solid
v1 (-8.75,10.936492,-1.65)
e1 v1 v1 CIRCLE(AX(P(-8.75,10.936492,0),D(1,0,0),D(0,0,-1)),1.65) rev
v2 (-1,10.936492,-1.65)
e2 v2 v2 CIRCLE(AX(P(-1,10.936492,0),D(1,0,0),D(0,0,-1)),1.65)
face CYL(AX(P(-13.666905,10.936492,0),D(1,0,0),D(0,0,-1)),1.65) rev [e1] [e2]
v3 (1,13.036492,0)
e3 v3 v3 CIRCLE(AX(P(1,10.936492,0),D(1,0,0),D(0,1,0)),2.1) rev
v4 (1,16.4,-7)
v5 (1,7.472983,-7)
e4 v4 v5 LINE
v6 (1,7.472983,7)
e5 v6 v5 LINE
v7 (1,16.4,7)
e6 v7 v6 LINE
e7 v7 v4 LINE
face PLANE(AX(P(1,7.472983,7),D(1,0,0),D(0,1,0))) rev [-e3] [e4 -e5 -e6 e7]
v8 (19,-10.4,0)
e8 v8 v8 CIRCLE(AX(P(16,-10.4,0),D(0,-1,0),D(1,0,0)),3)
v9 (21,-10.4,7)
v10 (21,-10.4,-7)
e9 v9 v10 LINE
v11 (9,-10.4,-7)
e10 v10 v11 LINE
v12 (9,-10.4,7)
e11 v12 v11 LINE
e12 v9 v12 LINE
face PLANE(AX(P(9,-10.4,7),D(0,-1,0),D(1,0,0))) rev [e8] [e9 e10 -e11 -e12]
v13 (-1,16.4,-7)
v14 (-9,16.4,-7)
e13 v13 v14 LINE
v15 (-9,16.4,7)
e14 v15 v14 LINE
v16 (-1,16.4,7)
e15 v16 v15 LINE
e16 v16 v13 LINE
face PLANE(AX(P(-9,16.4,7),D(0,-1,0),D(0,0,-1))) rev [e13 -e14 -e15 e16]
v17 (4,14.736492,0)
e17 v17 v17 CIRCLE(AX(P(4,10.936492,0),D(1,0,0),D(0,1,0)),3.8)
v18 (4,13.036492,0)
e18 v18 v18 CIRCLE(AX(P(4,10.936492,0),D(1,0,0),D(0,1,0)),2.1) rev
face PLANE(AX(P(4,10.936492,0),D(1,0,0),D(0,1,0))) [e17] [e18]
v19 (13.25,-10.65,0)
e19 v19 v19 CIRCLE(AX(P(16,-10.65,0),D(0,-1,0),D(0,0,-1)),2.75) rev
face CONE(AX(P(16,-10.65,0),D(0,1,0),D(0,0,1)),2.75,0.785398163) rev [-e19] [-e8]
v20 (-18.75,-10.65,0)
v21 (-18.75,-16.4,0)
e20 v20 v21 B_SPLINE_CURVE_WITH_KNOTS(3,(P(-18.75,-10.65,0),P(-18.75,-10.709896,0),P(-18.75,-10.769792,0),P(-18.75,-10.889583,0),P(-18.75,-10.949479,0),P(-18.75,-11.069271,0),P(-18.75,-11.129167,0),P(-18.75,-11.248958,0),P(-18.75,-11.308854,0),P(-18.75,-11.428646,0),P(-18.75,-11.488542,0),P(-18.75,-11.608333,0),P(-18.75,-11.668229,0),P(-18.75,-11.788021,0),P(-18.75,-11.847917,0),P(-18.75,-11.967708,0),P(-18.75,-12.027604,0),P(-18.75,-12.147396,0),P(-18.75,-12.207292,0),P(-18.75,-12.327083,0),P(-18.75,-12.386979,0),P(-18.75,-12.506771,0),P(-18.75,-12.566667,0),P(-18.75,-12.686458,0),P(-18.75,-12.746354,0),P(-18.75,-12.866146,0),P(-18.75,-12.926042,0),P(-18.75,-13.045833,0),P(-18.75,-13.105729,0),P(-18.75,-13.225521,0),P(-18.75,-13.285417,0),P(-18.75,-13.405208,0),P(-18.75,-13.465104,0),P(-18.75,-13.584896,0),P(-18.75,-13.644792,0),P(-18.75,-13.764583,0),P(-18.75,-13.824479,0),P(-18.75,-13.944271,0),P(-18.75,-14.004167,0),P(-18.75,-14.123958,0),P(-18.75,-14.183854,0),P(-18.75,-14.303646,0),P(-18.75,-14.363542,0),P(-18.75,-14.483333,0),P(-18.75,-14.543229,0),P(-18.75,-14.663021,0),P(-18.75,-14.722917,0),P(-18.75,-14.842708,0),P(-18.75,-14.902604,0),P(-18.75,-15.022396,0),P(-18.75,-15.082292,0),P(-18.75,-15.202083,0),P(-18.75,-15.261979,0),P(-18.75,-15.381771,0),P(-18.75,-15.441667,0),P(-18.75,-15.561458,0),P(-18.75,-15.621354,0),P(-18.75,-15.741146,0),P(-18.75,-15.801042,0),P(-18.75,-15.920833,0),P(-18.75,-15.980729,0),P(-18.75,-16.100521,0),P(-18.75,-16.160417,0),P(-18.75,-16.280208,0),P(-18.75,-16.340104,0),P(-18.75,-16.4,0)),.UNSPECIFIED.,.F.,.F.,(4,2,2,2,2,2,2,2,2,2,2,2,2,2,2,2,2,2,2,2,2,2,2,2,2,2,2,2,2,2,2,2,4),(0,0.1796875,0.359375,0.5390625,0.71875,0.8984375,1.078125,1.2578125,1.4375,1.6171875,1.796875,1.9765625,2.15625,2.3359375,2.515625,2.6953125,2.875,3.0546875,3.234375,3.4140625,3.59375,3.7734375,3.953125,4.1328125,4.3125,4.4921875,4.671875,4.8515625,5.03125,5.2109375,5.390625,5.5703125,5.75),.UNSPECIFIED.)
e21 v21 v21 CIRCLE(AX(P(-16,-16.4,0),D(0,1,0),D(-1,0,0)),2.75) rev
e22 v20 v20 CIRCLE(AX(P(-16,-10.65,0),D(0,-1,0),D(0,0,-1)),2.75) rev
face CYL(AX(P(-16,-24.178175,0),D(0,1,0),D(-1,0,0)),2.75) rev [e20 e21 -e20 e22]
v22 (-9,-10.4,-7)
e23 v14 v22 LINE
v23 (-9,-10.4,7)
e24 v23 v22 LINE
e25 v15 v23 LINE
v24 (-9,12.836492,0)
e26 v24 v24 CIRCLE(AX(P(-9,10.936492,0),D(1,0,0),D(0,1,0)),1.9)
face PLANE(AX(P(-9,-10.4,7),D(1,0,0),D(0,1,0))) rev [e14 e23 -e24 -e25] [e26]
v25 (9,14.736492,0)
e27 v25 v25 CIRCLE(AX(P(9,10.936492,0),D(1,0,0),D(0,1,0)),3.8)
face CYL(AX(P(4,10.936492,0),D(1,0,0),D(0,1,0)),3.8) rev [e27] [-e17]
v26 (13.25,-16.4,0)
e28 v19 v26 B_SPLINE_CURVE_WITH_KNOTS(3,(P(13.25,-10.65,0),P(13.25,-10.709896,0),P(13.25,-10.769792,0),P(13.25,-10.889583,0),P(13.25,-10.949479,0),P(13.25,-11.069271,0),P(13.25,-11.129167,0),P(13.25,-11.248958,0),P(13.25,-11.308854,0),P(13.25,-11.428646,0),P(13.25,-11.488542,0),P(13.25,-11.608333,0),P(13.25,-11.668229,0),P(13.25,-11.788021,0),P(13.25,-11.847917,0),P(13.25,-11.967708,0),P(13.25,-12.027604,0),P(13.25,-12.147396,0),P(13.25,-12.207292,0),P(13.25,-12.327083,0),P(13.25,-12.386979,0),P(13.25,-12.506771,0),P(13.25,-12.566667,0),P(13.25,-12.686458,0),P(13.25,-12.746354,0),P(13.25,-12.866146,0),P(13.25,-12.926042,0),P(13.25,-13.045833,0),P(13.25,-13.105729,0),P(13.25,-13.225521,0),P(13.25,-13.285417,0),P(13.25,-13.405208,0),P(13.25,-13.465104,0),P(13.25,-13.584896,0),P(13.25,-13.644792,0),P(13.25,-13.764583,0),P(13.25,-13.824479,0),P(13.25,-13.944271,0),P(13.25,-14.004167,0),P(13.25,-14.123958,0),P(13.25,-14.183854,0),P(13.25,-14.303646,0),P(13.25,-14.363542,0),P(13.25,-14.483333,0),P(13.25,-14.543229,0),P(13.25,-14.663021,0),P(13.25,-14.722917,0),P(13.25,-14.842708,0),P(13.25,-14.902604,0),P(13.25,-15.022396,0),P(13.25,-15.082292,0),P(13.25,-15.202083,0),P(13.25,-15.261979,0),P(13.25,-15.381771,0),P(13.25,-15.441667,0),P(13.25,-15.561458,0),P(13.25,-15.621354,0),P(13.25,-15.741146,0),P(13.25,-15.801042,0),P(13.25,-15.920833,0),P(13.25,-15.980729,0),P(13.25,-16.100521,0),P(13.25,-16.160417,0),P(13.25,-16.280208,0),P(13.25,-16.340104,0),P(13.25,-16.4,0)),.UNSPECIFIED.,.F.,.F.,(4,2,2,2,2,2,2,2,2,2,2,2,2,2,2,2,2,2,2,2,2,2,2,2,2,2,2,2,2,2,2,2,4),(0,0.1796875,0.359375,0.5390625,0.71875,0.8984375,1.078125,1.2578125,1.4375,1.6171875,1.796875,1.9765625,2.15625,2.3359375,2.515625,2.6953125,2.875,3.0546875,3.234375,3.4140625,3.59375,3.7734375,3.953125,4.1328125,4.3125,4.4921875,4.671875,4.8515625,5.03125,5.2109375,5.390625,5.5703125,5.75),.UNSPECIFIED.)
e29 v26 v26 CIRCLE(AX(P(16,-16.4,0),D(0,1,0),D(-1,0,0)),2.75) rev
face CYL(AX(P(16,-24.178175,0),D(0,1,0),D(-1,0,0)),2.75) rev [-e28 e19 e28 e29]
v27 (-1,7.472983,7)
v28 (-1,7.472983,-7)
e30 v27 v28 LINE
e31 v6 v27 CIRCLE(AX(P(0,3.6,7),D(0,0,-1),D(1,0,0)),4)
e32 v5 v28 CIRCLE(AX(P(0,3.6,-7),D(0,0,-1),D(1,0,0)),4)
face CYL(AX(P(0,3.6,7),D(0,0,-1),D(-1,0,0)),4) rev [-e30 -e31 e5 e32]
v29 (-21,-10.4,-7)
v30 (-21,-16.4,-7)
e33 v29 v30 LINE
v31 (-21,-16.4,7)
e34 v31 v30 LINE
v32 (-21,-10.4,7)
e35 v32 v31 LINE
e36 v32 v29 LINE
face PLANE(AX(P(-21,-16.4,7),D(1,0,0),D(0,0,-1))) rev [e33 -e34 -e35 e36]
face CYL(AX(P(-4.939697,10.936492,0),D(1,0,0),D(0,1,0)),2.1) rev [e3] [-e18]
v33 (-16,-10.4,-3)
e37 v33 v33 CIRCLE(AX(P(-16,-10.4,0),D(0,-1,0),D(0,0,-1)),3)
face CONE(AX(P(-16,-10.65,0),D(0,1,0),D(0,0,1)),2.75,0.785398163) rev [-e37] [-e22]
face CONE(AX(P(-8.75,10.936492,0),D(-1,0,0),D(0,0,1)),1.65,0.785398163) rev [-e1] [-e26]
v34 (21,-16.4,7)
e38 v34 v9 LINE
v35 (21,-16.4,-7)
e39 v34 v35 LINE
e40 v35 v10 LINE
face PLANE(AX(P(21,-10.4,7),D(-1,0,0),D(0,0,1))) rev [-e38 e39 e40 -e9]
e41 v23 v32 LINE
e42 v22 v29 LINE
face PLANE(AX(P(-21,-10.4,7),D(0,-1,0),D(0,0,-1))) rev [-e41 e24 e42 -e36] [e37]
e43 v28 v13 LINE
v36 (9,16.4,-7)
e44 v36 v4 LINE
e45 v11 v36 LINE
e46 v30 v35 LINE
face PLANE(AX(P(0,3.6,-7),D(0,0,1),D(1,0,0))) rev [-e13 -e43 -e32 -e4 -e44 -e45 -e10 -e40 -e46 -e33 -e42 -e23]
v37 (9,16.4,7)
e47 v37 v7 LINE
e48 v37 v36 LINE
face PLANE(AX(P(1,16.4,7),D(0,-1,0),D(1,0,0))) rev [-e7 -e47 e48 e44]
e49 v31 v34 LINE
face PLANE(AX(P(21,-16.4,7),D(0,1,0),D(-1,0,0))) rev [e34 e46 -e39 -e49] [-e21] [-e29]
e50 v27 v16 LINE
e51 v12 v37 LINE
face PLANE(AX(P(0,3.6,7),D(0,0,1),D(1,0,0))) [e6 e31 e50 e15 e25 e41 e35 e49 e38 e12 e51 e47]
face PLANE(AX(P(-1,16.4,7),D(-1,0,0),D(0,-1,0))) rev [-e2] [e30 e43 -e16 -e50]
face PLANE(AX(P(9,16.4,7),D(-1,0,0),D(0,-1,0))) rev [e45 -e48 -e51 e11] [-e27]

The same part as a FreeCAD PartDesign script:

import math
import FreeCAD as App
import Part
import Sketcher
Q = App.Units.Quantity


def edges_at(feature, points):
    """Names of the edges that pass closest to the given points."""
    edges = feature.Shape.Edges
    near = lambda p: min(range(len(edges)), key=lambda i: edges[i].distToShape(Part.Vertex(*p))[0])
    return sorted({f"Edge{near(p) + 1}" for p in points})

doc = App.newDocument("Part")
body = doc.addObject("PartDesign::Body", "Body")

sketch1 = body.newObject("Sketcher::SketchObject", "Sketch")
sketch1.AttachmentSupport = (doc.getObject("XY_Plane"), [""])
sketch1.MapMode = "FlatFace"
sketch1.addGeometry([
    Part.LineSegment(App.Vector(-1, 16.4, 0), App.Vector(-9, 16.4, 0)),
    Part.LineSegment(App.Vector(-9, 16.4, 0), App.Vector(-9, -10.4, 0)),
    Part.LineSegment(App.Vector(-9, -10.4, 0), App.Vector(-21, -10.4, 0)),
    Part.LineSegment(App.Vector(-21, -10.4, 0), App.Vector(-21, -16.4, 0)),
    Part.LineSegment(App.Vector(-21, -16.4, 0), App.Vector(21, -16.4, 0)),
    Part.LineSegment(App.Vector(21, -16.4, 0), App.Vector(21, -10.4, 0)),
    Part.LineSegment(App.Vector(21, -10.4, 0), App.Vector(9, -10.4, 0)),
    Part.LineSegment(App.Vector(9, -10.4, 0), App.Vector(9, 16.4, 0)),
    Part.LineSegment(App.Vector(9, 16.4, 0), App.Vector(1, 16.4, 0)),
    Part.LineSegment(App.Vector(1, 16.4, 0), App.Vector(1, 7.5, 0)),
    Part.ArcOfCircle(Part.Circle(App.Vector(0, 3.6, 0), App.Vector(0, 0, 1), 4), math.radians(104), math.radians(436)),
    Part.LineSegment(App.Vector(-1, 7.5, 0), App.Vector(-1, 16.4, 0)),
], False)
sketch1.addConstraint([
    Sketcher.Constraint("Coincident", 0, 2, 1, 1),
    Sketcher.Constraint("Coincident", 1, 2, 2, 1),
    Sketcher.Constraint("Coincident", 2, 2, 3, 1),
    Sketcher.Constraint("Coincident", 3, 2, 4, 1),
    Sketcher.Constraint("Coincident", 4, 2, 5, 1),
    Sketcher.Constraint("Coincident", 5, 2, 6, 1),
    Sketcher.Constraint("Coincident", 6, 2, 7, 1),
    Sketcher.Constraint("Coincident", 7, 2, 8, 1),
    Sketcher.Constraint("Coincident", 8, 2, 9, 1),
    Sketcher.Constraint("Coincident", 9, 2, 10, 2),
    Sketcher.Constraint("Coincident", 10, 1, 11, 1),
    Sketcher.Constraint("Coincident", 11, 2, 0, 1),
    Sketcher.Constraint("Horizontal", 0),
    Sketcher.Constraint("Vertical", 1),
    Sketcher.Constraint("Horizontal", 2),
    Sketcher.Constraint("Vertical", 3),
    Sketcher.Constraint("Horizontal", 4),
    Sketcher.Constraint("Vertical", 5),
    Sketcher.Constraint("Horizontal", 6),
    Sketcher.Constraint("Vertical", 7),
    Sketcher.Constraint("Horizontal", 8),
    Sketcher.Constraint("Vertical", 9),
    Sketcher.Constraint("Vertical", 11),
    Sketcher.Constraint("Symmetric", 2, 2, 5, 2, -2),
    Sketcher.Constraint("Symmetric", 0, 2, 7, 2, -2),
    Sketcher.Constraint("Symmetric", 9, 2, 10, 1, -2),
    Sketcher.Constraint("Radius", 10, Q("4 mm")),
    Sketcher.Constraint("DistanceX", 0, 2, 0, 1, Q("8 mm")),
    Sketcher.Constraint("DistanceX", 2, 2, 2, 1, Q("12 mm")),
    Sketcher.Constraint("DistanceX", 4, 1, 4, 2, Q("42 mm")),
    Sketcher.Constraint("DistanceY", 3, 2, 3, 1, Q("6 mm")),
    Sketcher.Constraint("DistanceY", 1, 2, 1, 1, Q("26.8 mm")),
    Sketcher.Constraint("DistanceY", 1, 2, 10, 3, Q("14 mm")),
    Sketcher.Constraint("DistanceY", -1, 1, 10, 3, Q("3.6 mm")),
])
pad1 = body.newObject("PartDesign::Pad", "Pad")
pad1.Profile = sketch1
pad1.Length = 14
pad1.Midplane = True

sketch2 = body.newObject("Sketcher::SketchObject", "Sketch001")
sketch2.AttachmentSupport = (doc.getObject("XZ_Plane"), [""])
sketch2.MapMode = "FlatFace"
sketch2.AttachmentOffset = App.Placement(App.Vector(0, 0, 10.4), App.Rotation())
sketch2.addGeometry([
    Part.Circle(App.Vector(-16, 0, 0), App.Vector(0, 0, 1), 2.8),
    Part.Circle(App.Vector(16, 0, 0), App.Vector(0, 0, 1), 2.8),
], False)
sketch2.addConstraint([
    Sketcher.Constraint("Equal", 0, 1),
    Sketcher.Constraint("Symmetric", 0, 3, 1, 3, -1, 1),
    Sketcher.Constraint("PointOnObject", 0, 3, -1),
    Sketcher.Constraint("Diameter", 0, Q("5.5 mm")),
    Sketcher.Constraint("DistanceX", 0, 3, -1, 1, Q("16 mm")),
])
pocket1 = body.newObject("PartDesign::Pocket", "Pocket")
pocket1.Profile = sketch2
pocket1.Length = 6
pocket1.Reversed = True

sketch3 = body.newObject("Sketcher::SketchObject", "Sketch002")
sketch3.AttachmentSupport = (doc.getObject("YZ_Plane"), [""])
sketch3.MapMode = "FlatFace"
sketch3.AttachmentOffset = App.Placement(App.Vector(0, 0, -1), App.Rotation())
sketch3.addGeometry(Part.Circle(App.Vector(10.9, 0, 0), App.Vector(0, 0, 1), 1.6), False)
sketch3.addConstraint([
    Sketcher.Constraint("PointOnObject", 0, 3, -1),
    Sketcher.Constraint("Diameter", 0, Q("3.3 mm")),
    Sketcher.Constraint("DistanceX", -1, 1, 0, 3, Q("10.936492 mm")),
])
pocket2 = body.newObject("PartDesign::Pocket", "Pocket001")
pocket2.Profile = sketch3
pocket2.Length = 8

sketch4 = body.newObject("Sketcher::SketchObject", "Sketch003")
sketch4.AttachmentSupport = (doc.getObject("YZ_Plane"), [""])
sketch4.MapMode = "FlatFace"
sketch4.AttachmentOffset = App.Placement(App.Vector(0, 0, 9), App.Rotation())
sketch4.addGeometry(Part.Circle(App.Vector(10.9, 0, 0), App.Vector(0, 0, 1), 2.1), False)
sketch4.addConstraint([
    Sketcher.Constraint("PointOnObject", 0, 3, -1),
    Sketcher.Constraint("Diameter", 0, Q("4.2 mm")),
    Sketcher.Constraint("DistanceX", -1, 1, 0, 3, Q("10.936492 mm")),
])
pocket3 = body.newObject("PartDesign::Pocket", "Pocket002")
pocket3.Profile = sketch4
pocket3.Length = 8

sketch5 = body.newObject("Sketcher::SketchObject", "Sketch004")
sketch5.AttachmentSupport = (doc.getObject("YZ_Plane"), [""])
sketch5.MapMode = "FlatFace"
sketch5.AttachmentOffset = App.Placement(App.Vector(0, 0, 9), App.Rotation())
sketch5.addGeometry(Part.Circle(App.Vector(10.9, 0, 0), App.Vector(0, 0, 1), 3.8), False)
sketch5.addConstraint([
    Sketcher.Constraint("PointOnObject", 0, 3, -1),
    Sketcher.Constraint("Diameter", 0, Q("7.6 mm")),
    Sketcher.Constraint("DistanceX", -1, 1, 0, 3, Q("10.936492 mm")),
])
pocket4 = body.newObject("PartDesign::Pocket", "Pocket003")
pocket4.Profile = sketch5
pocket4.Length = 5
doc.recompute()

chamfer = body.newObject("PartDesign::Chamfer", "Chamfer")
chamfer.Base = (pocket4, edges_at(pocket4, [(-13.25, -10.4, 0), (18.75, -10.4, 0), (-9, 10.936, 1.65)]))
chamfer.Size = 0.25

doc.recompute()
